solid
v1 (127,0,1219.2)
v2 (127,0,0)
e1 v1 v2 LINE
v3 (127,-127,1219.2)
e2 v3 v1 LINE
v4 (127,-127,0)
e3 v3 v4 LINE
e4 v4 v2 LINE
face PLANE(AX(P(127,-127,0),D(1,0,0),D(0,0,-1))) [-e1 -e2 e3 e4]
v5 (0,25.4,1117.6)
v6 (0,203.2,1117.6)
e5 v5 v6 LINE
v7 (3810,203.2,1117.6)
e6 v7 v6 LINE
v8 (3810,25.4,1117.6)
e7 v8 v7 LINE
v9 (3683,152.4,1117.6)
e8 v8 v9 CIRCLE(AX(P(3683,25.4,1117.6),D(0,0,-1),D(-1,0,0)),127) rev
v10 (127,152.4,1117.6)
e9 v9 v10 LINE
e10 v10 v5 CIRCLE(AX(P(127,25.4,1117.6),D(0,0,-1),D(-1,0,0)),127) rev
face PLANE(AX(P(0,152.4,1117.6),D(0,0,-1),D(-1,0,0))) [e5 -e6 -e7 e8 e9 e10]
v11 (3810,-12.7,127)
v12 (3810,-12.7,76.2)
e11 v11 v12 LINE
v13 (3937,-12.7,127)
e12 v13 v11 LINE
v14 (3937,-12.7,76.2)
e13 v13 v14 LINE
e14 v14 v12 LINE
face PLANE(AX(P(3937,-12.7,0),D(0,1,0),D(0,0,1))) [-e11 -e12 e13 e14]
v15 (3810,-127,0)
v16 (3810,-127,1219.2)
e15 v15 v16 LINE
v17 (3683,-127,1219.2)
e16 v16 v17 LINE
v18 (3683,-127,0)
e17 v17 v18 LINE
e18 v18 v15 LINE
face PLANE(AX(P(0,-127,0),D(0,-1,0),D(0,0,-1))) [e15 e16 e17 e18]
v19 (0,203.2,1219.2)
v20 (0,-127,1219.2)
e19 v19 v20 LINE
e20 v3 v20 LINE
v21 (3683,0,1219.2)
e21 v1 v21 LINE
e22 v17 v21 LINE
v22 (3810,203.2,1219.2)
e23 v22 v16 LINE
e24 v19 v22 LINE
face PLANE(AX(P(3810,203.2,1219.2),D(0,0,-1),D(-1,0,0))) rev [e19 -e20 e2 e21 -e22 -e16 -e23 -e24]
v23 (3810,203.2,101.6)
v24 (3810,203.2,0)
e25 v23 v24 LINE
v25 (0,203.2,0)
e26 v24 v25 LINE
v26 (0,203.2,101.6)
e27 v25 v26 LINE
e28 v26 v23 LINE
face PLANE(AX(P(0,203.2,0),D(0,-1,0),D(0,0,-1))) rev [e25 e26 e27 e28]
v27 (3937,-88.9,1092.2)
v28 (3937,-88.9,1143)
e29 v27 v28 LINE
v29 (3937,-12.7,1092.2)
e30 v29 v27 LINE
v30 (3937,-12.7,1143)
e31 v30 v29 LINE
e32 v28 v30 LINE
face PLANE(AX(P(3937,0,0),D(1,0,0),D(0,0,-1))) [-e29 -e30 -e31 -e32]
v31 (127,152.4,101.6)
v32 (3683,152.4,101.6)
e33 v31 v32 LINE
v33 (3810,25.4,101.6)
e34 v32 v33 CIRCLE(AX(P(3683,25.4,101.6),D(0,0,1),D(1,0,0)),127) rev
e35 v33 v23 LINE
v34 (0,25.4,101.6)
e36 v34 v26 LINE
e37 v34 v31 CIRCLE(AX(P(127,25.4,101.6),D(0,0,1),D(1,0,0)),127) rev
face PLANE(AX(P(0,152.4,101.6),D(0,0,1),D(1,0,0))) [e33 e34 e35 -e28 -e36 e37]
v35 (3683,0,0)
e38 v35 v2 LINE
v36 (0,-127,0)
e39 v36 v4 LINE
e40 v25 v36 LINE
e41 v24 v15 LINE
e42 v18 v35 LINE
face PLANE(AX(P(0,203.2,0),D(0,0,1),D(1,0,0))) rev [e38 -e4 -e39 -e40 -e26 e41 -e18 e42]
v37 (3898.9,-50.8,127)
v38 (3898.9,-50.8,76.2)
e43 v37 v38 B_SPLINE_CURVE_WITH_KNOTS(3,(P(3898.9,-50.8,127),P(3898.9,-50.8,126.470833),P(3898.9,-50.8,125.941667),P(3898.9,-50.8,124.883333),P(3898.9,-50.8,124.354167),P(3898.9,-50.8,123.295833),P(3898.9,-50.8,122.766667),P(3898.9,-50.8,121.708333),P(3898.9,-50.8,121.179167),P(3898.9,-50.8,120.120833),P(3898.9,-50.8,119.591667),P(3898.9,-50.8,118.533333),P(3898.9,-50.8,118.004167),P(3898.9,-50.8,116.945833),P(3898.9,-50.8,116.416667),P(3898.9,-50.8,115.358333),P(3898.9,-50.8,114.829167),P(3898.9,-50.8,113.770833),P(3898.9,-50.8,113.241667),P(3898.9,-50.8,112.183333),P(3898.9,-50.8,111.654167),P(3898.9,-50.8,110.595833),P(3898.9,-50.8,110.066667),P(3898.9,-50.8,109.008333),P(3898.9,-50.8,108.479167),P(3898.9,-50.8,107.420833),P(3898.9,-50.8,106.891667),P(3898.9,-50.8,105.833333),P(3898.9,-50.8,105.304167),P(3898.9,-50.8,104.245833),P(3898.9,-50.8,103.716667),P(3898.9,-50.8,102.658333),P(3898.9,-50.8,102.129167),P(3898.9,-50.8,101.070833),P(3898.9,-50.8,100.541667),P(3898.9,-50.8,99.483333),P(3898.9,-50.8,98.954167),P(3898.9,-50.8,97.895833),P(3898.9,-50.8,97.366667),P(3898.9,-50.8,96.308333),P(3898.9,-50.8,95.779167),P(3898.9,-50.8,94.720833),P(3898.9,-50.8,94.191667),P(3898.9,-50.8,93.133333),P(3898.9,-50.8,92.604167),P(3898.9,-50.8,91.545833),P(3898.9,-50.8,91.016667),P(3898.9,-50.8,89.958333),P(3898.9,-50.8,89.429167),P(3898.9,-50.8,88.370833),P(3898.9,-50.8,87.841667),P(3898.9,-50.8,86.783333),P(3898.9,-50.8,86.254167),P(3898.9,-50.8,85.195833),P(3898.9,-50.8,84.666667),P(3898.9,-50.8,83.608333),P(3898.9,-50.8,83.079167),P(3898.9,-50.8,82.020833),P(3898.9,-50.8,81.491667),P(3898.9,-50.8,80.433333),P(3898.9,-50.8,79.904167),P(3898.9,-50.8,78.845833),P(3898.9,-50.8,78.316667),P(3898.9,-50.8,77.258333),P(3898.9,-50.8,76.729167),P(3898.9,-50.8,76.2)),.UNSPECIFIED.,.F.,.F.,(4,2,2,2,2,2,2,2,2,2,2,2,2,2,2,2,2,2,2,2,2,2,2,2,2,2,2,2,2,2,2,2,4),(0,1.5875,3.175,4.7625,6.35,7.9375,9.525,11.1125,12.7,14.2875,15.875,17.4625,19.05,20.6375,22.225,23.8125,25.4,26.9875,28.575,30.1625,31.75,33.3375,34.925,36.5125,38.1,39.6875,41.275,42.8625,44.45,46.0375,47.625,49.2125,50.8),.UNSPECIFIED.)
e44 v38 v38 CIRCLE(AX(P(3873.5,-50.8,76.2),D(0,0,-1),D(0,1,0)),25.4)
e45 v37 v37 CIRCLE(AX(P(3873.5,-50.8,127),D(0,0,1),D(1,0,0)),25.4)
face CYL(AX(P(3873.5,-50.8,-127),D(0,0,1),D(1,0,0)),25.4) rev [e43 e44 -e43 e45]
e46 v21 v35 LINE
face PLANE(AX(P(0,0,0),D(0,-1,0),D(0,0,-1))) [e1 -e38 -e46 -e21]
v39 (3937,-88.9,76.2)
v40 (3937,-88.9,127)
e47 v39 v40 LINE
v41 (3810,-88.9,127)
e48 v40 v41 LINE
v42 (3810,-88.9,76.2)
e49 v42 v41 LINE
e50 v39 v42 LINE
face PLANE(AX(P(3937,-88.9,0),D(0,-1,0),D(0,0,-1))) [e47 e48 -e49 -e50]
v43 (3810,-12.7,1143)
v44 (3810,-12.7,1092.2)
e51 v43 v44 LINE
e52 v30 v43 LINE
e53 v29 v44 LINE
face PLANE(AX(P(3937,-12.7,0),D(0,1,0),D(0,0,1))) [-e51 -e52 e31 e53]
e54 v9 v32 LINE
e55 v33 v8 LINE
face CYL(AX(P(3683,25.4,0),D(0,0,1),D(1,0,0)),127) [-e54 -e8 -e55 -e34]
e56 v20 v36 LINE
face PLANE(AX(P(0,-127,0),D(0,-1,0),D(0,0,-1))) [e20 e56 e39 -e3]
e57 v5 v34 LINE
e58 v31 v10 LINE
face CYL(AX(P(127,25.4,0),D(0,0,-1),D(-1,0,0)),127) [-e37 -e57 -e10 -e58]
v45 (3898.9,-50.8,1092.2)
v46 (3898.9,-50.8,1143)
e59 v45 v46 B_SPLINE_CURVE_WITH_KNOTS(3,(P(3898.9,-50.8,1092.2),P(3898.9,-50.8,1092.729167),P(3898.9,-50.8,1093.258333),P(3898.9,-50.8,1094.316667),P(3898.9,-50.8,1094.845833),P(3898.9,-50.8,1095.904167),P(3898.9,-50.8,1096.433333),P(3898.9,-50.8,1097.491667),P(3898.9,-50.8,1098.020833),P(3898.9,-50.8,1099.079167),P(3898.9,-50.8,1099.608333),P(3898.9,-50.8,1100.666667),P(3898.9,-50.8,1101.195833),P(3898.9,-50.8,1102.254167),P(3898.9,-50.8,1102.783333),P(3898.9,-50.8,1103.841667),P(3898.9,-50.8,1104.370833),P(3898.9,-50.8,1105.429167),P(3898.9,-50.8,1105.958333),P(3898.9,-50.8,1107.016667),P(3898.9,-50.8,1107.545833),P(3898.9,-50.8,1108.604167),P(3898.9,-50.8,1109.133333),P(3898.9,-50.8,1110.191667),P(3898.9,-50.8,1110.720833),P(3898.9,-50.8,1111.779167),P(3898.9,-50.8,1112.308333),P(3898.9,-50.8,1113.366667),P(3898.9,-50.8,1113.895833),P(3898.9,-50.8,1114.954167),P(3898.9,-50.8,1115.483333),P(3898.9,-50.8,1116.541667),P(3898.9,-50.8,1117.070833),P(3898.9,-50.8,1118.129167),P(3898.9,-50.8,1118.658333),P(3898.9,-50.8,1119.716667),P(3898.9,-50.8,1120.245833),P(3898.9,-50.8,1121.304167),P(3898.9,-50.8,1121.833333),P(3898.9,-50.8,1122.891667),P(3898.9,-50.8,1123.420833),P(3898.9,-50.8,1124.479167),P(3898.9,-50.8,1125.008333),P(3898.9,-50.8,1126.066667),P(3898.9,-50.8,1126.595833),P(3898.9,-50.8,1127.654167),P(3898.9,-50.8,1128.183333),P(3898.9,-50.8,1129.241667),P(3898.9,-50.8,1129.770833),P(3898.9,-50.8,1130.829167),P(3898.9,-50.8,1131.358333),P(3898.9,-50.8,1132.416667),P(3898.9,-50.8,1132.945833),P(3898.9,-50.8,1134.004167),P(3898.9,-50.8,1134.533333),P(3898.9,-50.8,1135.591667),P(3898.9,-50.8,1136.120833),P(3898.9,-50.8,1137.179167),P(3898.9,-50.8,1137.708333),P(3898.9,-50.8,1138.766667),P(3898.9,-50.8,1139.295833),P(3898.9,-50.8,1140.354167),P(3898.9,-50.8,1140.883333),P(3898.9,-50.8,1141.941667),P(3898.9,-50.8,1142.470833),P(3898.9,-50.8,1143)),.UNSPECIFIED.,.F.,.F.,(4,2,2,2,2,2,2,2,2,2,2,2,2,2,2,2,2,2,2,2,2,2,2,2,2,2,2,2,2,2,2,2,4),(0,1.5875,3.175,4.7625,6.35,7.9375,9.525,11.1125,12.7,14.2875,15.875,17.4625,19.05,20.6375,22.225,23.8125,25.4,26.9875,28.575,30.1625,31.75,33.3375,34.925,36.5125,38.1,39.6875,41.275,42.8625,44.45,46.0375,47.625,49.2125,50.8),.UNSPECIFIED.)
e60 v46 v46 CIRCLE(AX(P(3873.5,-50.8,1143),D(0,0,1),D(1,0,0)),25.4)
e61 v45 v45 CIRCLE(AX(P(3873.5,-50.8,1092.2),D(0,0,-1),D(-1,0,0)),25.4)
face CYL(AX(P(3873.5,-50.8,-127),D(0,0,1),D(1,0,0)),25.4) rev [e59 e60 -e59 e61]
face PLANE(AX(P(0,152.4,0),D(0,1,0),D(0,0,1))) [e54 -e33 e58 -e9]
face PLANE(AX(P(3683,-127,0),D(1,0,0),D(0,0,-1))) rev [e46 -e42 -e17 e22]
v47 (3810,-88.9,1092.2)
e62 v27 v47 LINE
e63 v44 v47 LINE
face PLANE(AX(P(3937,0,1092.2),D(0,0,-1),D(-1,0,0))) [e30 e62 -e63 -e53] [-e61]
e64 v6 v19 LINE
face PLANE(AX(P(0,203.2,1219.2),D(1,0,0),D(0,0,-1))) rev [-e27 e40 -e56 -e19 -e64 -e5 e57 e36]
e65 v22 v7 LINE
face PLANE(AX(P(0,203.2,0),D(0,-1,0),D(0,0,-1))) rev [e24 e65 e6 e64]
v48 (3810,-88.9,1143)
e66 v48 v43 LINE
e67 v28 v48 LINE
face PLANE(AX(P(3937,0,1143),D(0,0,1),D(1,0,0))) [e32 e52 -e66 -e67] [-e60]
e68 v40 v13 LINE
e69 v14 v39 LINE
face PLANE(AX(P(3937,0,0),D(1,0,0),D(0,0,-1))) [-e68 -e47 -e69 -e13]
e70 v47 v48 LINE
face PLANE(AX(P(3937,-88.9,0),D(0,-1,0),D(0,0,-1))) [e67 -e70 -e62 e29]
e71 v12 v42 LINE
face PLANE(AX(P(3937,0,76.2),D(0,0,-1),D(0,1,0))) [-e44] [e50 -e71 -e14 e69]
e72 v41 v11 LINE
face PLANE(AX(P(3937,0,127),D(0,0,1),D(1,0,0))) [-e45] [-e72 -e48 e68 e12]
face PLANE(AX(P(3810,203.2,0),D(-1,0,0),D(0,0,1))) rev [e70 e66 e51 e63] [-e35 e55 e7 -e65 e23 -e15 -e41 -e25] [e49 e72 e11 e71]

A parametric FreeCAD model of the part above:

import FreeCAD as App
import Part
import Sketcher
from FreeCAD import Vector
Q = App.Units.Quantity


def edges_at(feature, points):
    """Names of the edges that pass closest to the given points."""
    edges = feature.Shape.Edges
    near = lambda p: min(range(len(edges)), key=lambda i: edges[i].distToShape(Part.Vertex(*p))[0])
    return sorted({f"Edge{near(p) + 1}" for p in points})

doc = App.newDocument("Part")
body = doc.addObject("PartDesign::Body", "Body")

# Sketch on XZ plane
sketch1 = body.newObject("Sketcher::SketchObject", "Sketch")
sketch1.AttachmentSupport = (doc.getObject("XZ_Plane"), [""])
sketch1.MapMode = "FlatFace"
sketch1.addGeometry([
    Part.LineSegment(Vector(0, 0, 0), Vector(0, 1219.2, 0)),
    Part.LineSegment(Vector(0, 1219.2, 0), Vector(3810, 1219.2, 0)),
    Part.LineSegment(Vector(3810, 1219.2, 0), Vector(3810, 0, 0)),
    Part.LineSegment(Vector(3810, 0, 0), Vector(0, 0, 0)),
], False)
sketch1.addConstraint([
    Sketcher.Constraint("Coincident", 0, 2, 1, 1),
    Sketcher.Constraint("Coincident", 1, 2, 2, 1),
    Sketcher.Constraint("Coincident", 2, 2, 3, 1),
    Sketcher.Constraint("Coincident", 3, 2, 0, 1),
    Sketcher.Constraint("Vertical", 0),
    Sketcher.Constraint("Horizontal", 1),
    Sketcher.Constraint("Vertical", 2),
    Sketcher.Constraint("Horizontal", 3),
    Sketcher.Constraint("Coincident", 3, 2, -1, 1),
    Sketcher.Constraint("DistanceX", 1, 1, 1, 2, Q("150 in")),
    Sketcher.Constraint("DistanceY", 0, 1, 0, 2, Q("48 in")),
])
pad1 = body.newObject("PartDesign::Pad", "Pad")
pad1.Profile = sketch1
pad1.Length = Q("8 in")
pad1.Reversed = True

# Sketch on XZ plane
sketch2 = body.newObject("Sketcher::SketchObject", "Sketch001")
sketch2.AttachmentSupport = (doc.getObject("XZ_Plane"), [""])
sketch2.MapMode = "FlatFace"
sketch2.AttachmentOffset = App.Placement(Vector(0, 0, -8 * 25.4), App.Rotation())
sketch2.addGeometry([
    Part.LineSegment(Vector(0, 101.6, 0), Vector(0, 1117.6, 0)),
    Part.LineSegment(Vector(0, 1117.6, 0), Vector(3810, 1117.6, 0)),
    Part.LineSegment(Vector(3810, 1117.6, 0), Vector(3810, 101.6, 0)),
    Part.LineSegment(Vector(3810, 101.6, 0), Vector(0, 101.6, 0)),
], False)
sketch2.addConstraint([
    Sketcher.Constraint("Coincident", 0, 2, 1, 1),
    Sketcher.Constraint("Coincident", 1, 2, 2, 1),
    Sketcher.Constraint("Coincident", 2, 2, 3, 1),
    Sketcher.Constraint("Coincident", 3, 2, 0, 1),
    Sketcher.Constraint("Vertical", 0),
    Sketcher.Constraint("Horizontal", 1),
    Sketcher.Constraint("Vertical", 2),
    Sketcher.Constraint("Horizontal", 3),
    Sketcher.Constraint("PointOnObject", 0, 2, -2),
    Sketcher.Constraint("DistanceX", 1, 1, 1, 2, Q("150 in")),
    Sketcher.Constraint("DistanceY", 0, 1, 0, 2, Q("40 in")),
    Sketcher.Constraint("DistanceY", -1, 1, 0, 2, Q("44 in")),
])
pocket1 = body.newObject("PartDesign::Pocket", "Pocket")
pocket1.Profile = sketch2
pocket1.Length = Q("2 in")
pocket1.Reversed = True

# Sketch on XZ plane
sketch3 = body.newObject("Sketcher::SketchObject", "Sketch002")
sketch3.AttachmentSupport = (doc.getObject("XZ_Plane"), [""])
sketch3.MapMode = "FlatFace"
sketch3.addGeometry([
    Part.LineSegment(Vector(127, 0, 0), Vector(127, 1219.2, 0)),  # 0
    Part.LineSegment(Vector(127, 1219.2, 0), Vector(0, 1219.2, 0)),  # 1
    Part.LineSegment(Vector(0, 1219.2, 0), Vector(0, 0, 0)),  # 2
    Part.LineSegment(Vector(0, 0, 0), Vector(127, 0, 0)),  # 3
    Part.LineSegment(Vector(3810, 0, 0), Vector(3810, 1219.2, 0)),  # 4
    Part.LineSegment(Vector(3810, 1219.2, 0), Vector(3683, 1219.2, 0)),  # 5
    Part.LineSegment(Vector(3683, 1219.2, 0), Vector(3683, 0, 0)),  # 6
    Part.LineSegment(Vector(3683, 0, 0), Vector(3810, 0, 0)),  # 7
], False)
sketch3.addConstraint([
    Sketcher.Constraint("Coincident", 0, 2, 1, 1),
    Sketcher.Constraint("Coincident", 1, 2, 2, 1),
    Sketcher.Constraint("Coincident", 2, 2, 3, 1),
    Sketcher.Constraint("Coincident", 3, 2, 0, 1),
    Sketcher.Constraint("Coincident", 4, 2, 5, 1),
    Sketcher.Constraint("Coincident", 5, 2, 6, 1),
    Sketcher.Constraint("Coincident", 6, 2, 7, 1),
    Sketcher.Constraint("Coincident", 7, 2, 4, 1),
    Sketcher.Constraint("Vertical", 0),
    Sketcher.Constraint("Horizontal", 1),
    Sketcher.Constraint("Vertical", 2),
    Sketcher.Constraint("Horizontal", 3),
    Sketcher.Constraint("Vertical", 4),
    Sketcher.Constraint("Horizontal", 5),
    Sketcher.Constraint("Vertical", 6),
    Sketcher.Constraint("Horizontal", 7),
    Sketcher.Constraint("Coincident", 2, 2, -1, 1),
    Sketcher.Constraint("PointOnObject", 6, 2, -1),
    Sketcher.Constraint("Horizontal", 1, 2, 4, 2),
    Sketcher.Constraint("Equal", 3, 5),
    Sketcher.Constraint("DistanceX", 1, 2, 1, 1, Q("5 in")),
    Sketcher.Constraint("DistanceY", 0, 1, 0, 2, Q("48 in")),
    Sketcher.Constraint("DistanceX", -1, 1, 4, 2, Q("150 in")),
])
pad2 = body.newObject("PartDesign::Pad", "Pad001")
pad2.Profile = sketch3
pad2.Length = Q("5 in")
doc.recompute()

fillet = body.newObject("PartDesign::Fillet", "Fillet")
fillet.Base = (pad2, edges_at(pad2, [(0, 152.4, 609.6), (3810, 152.4, 609.6)]))
fillet.Radius = Q("5 in")

# Sketch on YZ plane
sketch4 = body.newObject("Sketcher::SketchObject", "Sketch003")
sketch4.AttachmentSupport = (doc.getObject("YZ_Plane"), [""])
sketch4.MapMode = "FlatFace"
sketch4.AttachmentOffset = App.Placement(Vector(0, 0, 150 * 25.4), App.Rotation())
sketch4.addGeometry([
    Part.LineSegment(Vector(-12.7, 1092.2, 0), Vector(-12.7, 1143, 0)),  # 0
    Part.LineSegment(Vector(-12.7, 1143, 0), Vector(-88.9, 1143, 0)),  # 1
    Part.LineSegment(Vector(-88.9, 1143, 0), Vector(-88.9, 1092.2, 0)),  # 2
    Part.LineSegment(Vector(-88.9, 1092.2, 0), Vector(-12.7, 1092.2, 0)),  # 3
    Part.LineSegment(Vector(-88.9, 127, 0), Vector(-88.9, 76.2, 0)),  # 4
    Part.LineSegment(Vector(-88.9, 76.2, 0), Vector(-12.7, 76.2, 0)),  # 5
    Part.LineSegment(Vector(-12.7, 76.2, 0), Vector(-12.7, 127, 0)),  # 6
    Part.LineSegment(Vector(-12.7, 127, 0), Vector(-88.9, 127, 0)),  # 7
], False)
sketch4.addConstraint([
    Sketcher.Constraint("Coincident", 0, 2, 1, 1),
    Sketcher.Constraint("Coincident", 1, 2, 2, 1),
    Sketcher.Constraint("Coincident", 2, 2, 3, 1),
    Sketcher.Constraint("Coincident", 3, 2, 0, 1),
    Sketcher.Constraint("Coincident", 4, 2, 5, 1),
    Sketcher.Constraint("Coincident", 5, 2, 6, 1),
    Sketcher.Constraint("Coincident", 6, 2, 7, 1),
    Sketcher.Constraint("Coincident", 7, 2, 4, 1),
    Sketcher.Constraint("Vertical", 0),
    Sketcher.Constraint("Horizontal", 1),
    Sketcher.Constraint("Vertical", 2),
    Sketcher.Constraint("Horizontal", 3),
    Sketcher.Constraint("Vertical", 4),
    Sketcher.Constraint("Horizontal", 5),
    Sketcher.Constraint("Vertical", 6),
    Sketcher.Constraint("Horizontal", 7),
    Sketcher.Constraint("Vertical", 2, 2, 4, 2),
    Sketcher.Constraint("Vertical", 3, 2, 5, 2),
    Sketcher.Constraint("Equal", 2, 4),
    Sketcher.Constraint("DistanceX", 1, 2, 1, 1, Q("3 in")),
    Sketcher.Constraint("DistanceY", 0, 1, 0, 2, Q("2 in")),
    Sketcher.Constraint("DistanceY", -1, 1, 0, 2, Q("45 in")),
    Sketcher.Constraint("DistanceY", -1, 1, 4, 2, Q("3 in")),
    Sketcher.Constraint("DistanceX", 0, 2, -1, 1, Q("0.5 in")),
])
pad3 = body.newObject("PartDesign::Pad", "Pad002")
pad3.Profile = sketch4
pad3.Length = Q("5 in")

# Sketch on XY plane
sketch5 = body.newObject("Sketcher::SketchObject", "Sketch004")
sketch5.AttachmentSupport = (doc.getObject("XY_Plane"), [""])
sketch5.MapMode = "FlatFace"
sketch5.AttachmentOffset = App.Placement(Vector(0, 0, 45 * 25.4), App.Rotation())
sketch5.addGeometry(Part.Circle(Vector(3873.5, -50.8, 0), Vector(0, 0, 1), 25.4), False)
sketch5.addConstraint([
    Sketcher.Constraint("Diameter", 0, Q("2 in")),
    Sketcher.Constraint("DistanceY", 0, 3, -1, 1, Q("2 in")),
    Sketcher.Constraint("DistanceX", -1, 1, 0, 3, Q("152.5 in")),
])
pocket2 = body.newObject("PartDesign::Pocket", "Pocket001")
pocket2.Profile = sketch5
pocket2.Length = Q("50 in")

doc.recompute()
